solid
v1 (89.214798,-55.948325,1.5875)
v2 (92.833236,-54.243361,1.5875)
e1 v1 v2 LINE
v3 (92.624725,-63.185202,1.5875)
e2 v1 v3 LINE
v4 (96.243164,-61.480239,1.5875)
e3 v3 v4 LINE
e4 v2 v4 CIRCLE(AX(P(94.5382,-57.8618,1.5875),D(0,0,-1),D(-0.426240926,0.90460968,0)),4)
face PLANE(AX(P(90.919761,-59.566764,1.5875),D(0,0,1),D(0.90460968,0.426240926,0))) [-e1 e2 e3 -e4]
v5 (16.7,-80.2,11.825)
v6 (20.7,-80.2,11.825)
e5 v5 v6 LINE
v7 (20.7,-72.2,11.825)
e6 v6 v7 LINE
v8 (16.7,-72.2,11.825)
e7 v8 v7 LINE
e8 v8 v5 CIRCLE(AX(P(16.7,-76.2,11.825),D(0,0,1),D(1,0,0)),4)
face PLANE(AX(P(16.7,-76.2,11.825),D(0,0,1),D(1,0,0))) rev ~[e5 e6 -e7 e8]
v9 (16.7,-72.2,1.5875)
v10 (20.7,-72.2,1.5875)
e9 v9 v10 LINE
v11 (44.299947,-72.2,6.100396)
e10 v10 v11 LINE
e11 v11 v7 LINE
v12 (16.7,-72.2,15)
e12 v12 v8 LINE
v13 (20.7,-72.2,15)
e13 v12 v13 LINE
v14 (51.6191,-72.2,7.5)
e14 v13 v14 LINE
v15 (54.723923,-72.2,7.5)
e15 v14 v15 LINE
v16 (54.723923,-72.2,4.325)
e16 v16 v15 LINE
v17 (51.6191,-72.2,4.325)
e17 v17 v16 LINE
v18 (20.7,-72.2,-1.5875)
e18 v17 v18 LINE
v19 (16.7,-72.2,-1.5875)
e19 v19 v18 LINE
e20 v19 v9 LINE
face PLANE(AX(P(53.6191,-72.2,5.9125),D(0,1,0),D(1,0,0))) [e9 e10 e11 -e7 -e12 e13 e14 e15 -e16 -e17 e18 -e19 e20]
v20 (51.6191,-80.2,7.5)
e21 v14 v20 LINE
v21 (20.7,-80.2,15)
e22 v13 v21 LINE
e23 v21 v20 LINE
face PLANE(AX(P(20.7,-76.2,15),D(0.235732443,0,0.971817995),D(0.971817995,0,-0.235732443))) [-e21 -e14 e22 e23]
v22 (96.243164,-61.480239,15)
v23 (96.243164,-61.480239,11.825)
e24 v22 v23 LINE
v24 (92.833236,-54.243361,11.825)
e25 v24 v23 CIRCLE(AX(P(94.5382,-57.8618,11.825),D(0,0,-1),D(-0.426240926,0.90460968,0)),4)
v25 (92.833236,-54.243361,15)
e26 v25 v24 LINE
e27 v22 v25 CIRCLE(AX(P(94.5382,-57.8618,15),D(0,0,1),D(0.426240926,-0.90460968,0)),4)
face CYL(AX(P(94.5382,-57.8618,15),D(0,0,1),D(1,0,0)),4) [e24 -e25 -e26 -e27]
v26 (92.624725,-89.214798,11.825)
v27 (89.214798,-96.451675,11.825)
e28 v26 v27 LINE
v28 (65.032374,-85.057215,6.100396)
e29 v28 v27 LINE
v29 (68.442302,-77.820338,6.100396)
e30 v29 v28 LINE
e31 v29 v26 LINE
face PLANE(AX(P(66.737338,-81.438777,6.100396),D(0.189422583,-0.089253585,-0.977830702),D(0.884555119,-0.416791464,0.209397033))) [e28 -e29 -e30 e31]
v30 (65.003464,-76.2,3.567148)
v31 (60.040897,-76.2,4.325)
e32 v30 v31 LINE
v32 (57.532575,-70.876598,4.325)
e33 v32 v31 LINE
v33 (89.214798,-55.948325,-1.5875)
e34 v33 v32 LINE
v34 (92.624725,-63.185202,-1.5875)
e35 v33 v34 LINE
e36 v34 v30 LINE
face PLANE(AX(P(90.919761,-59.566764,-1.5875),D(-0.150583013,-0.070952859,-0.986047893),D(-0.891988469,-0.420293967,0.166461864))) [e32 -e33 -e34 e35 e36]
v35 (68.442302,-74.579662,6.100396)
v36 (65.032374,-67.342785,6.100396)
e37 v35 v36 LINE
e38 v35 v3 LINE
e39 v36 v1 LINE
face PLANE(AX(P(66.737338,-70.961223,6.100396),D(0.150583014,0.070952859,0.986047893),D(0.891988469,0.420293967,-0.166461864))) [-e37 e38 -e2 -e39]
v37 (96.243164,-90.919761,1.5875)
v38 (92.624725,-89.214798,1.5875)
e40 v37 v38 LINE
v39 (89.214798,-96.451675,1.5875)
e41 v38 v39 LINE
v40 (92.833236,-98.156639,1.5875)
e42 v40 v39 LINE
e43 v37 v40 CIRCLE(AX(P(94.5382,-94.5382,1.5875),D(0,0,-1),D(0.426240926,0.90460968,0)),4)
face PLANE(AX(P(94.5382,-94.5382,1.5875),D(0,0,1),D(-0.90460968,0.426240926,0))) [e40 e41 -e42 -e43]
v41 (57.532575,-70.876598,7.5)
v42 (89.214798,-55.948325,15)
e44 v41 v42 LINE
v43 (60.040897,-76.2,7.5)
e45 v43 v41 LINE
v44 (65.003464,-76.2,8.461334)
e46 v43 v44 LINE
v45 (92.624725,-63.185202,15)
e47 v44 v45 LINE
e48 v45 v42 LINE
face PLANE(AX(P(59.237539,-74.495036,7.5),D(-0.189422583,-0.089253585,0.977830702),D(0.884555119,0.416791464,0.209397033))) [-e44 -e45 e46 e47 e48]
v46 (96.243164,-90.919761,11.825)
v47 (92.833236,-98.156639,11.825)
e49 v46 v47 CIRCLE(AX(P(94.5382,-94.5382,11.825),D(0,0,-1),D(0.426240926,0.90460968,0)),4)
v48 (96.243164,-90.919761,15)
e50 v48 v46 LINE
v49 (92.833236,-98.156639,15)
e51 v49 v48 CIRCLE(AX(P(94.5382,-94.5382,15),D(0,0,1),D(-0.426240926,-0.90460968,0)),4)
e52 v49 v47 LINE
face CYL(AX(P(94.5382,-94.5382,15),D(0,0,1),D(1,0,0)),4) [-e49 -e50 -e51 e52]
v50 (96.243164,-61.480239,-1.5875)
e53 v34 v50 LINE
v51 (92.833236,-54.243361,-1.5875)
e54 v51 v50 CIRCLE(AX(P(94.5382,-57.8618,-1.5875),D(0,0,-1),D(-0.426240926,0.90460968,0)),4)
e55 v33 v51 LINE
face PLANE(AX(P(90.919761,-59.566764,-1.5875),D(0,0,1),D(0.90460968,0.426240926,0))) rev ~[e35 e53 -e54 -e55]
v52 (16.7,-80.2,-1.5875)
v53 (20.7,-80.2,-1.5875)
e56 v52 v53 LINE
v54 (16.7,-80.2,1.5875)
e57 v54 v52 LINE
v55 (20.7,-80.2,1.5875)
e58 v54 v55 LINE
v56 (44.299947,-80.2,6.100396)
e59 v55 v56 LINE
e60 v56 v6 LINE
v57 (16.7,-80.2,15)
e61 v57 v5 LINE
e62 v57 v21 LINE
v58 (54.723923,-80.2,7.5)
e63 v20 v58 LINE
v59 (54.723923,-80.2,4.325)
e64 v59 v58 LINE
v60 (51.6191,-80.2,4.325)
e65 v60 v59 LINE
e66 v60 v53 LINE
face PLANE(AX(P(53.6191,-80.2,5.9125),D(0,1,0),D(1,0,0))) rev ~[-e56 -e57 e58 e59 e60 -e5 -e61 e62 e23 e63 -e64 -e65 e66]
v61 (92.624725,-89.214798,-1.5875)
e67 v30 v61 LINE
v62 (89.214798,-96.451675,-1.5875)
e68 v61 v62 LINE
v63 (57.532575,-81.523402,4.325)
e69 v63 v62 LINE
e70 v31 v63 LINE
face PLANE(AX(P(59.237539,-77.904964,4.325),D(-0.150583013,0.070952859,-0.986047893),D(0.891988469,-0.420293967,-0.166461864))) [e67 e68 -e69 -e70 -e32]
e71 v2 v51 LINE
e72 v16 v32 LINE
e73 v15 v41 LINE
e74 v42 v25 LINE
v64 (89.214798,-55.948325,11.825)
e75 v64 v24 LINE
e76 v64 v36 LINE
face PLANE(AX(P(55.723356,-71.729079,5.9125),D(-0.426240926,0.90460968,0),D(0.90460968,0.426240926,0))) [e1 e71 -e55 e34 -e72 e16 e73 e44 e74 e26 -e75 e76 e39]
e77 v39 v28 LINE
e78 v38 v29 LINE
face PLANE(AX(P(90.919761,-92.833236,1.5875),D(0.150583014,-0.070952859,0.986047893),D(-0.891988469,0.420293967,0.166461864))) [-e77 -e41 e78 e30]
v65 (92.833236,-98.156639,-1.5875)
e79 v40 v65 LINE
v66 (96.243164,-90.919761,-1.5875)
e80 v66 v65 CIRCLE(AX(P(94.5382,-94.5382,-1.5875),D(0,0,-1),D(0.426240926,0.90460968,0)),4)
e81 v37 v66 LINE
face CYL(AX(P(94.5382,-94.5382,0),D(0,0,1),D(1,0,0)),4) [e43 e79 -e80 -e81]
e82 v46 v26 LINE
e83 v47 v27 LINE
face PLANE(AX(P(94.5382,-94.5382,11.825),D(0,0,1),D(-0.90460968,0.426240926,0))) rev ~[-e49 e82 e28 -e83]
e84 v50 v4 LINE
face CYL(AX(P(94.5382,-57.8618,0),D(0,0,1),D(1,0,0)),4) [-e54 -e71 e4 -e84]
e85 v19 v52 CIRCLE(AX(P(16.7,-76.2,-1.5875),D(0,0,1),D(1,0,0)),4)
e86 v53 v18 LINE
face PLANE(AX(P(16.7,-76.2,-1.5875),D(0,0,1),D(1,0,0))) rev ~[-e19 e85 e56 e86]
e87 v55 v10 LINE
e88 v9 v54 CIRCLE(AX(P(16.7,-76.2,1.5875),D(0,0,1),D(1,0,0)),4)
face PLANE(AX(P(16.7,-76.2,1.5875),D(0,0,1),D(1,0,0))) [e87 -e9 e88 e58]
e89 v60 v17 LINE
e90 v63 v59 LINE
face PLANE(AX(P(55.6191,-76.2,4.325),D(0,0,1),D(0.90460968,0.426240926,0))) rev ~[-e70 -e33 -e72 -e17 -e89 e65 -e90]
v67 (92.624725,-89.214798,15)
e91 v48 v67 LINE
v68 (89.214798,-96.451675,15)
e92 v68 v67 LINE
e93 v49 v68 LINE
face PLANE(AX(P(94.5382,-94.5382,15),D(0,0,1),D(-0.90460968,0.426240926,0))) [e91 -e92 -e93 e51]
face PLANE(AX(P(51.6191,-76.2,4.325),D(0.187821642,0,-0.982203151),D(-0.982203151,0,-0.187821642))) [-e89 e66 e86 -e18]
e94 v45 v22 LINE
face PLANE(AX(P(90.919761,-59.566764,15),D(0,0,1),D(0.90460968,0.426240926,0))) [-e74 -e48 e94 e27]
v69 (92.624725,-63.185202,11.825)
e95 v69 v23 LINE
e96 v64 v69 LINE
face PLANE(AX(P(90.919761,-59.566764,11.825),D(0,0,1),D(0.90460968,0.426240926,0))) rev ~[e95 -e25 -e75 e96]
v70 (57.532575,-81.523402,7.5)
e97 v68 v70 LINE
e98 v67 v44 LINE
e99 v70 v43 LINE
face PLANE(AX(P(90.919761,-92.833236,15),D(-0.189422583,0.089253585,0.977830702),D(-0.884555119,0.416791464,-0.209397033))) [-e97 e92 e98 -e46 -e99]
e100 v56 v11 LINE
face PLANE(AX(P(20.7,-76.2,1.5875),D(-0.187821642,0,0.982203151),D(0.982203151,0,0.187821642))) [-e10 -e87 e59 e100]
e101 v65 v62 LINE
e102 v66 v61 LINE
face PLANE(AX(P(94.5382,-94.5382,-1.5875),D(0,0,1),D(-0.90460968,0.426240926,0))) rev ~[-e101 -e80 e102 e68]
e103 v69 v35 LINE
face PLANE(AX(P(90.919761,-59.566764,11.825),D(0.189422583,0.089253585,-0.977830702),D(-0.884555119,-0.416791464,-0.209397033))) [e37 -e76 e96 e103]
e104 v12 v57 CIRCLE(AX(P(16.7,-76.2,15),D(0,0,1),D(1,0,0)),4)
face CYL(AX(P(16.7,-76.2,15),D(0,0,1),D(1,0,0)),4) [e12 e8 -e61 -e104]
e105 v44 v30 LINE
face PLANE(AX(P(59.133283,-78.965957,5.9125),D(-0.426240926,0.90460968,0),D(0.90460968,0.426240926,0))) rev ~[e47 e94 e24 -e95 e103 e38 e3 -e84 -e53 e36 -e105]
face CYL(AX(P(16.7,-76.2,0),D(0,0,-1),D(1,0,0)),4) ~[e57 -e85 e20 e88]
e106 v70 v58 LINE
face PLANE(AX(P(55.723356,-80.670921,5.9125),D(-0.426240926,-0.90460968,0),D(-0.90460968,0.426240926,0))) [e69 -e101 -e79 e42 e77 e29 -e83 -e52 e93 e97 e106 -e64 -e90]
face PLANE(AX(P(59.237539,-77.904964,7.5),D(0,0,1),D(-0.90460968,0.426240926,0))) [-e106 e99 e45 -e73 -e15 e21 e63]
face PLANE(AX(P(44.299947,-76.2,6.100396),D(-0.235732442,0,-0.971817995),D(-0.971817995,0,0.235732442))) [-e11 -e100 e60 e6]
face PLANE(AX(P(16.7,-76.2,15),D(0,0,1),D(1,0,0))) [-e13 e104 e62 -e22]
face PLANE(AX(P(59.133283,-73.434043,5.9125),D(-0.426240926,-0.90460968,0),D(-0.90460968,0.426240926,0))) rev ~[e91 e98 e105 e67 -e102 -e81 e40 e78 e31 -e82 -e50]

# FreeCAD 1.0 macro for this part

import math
import FreeCAD as App
import Part
import Sketcher


def add_polygon(sketch, points):
    """Adds a closed chain of lines whose ends are joined by coincident constraints."""
    first, n = sketch.GeometryCount, len(points)
    for a, b in zip(points, points[1:] + points[:1]):
        sketch.addGeometry(Part.LineSegment(App.Vector(*a, 0), App.Vector(*b, 0)), False)
    for i in range(n):
        sketch.addConstraint(Sketcher.Constraint("Coincident", first + i, 2, first + (i + 1) % n, 1))

doc = App.newDocument("Part")
body = doc.addObject("PartDesign::Body", "Body")
body.AllowCompound = True

# Sketch on XY plane
sketch1 = body.newObject("Sketcher::SketchObject", "Sketch")
sketch1.AttachmentSupport = (doc.getObject("XY_Plane"), [""])
sketch1.MapMode = "FlatFace"
sketch1.addGeometry(Part.Circle(App.Vector(16.7, -76.2, 0), App.Vector(0, 0, 1), 4), False)
sketch1.addGeometry(Part.Circle(App.Vector(94.5382, -57.8618, 0), App.Vector(0, 0, 1), 4), False)
sketch1.addGeometry(Part.Circle(App.Vector(94.5382, -94.5382, 0), App.Vector(0, 0, 1), 4), False)
sketch1.addConstraint(Sketcher.Constraint("Equal", 0, 1))
sketch1.addConstraint(Sketcher.Constraint("Equal", 1, 2))
sketch1.addConstraint(Sketcher.Constraint("Vertical", 1, 3, 2, 3))
sketch1.addConstraint(Sketcher.Constraint("Diameter", 0, 8.0))
sketch1.addConstraint(Sketcher.Constraint("DistanceX", -1, 1, 0, 3, 16.7))
sketch1.addConstraint(Sketcher.Constraint("DistanceY", 0, 3, -1, 1, 76.2))
sketch1.addConstraint(Sketcher.Constraint("DistanceX", -1, 1, 1, 3, 94.5382))
sketch1.addConstraint(Sketcher.Constraint("DistanceY", 1, 3, -1, 1, 57.8618))
sketch1.addConstraint(Sketcher.Constraint("DistanceY", 2, 3, -1, 1, 94.5382))
pad1 = body.newObject("PartDesign::Pad", "Pad")
pad1.Profile = sketch1
pad1.Length = 3.175
pad1.Midplane = True
body2 = doc.addObject("PartDesign::Body", "Body001")
body2.AllowCompound = True

# Sketch on XY plane
sketch2 = body2.newObject("Sketcher::SketchObject", "Sketch001")
sketch2.AttachmentSupport = (doc.getObject("XY_Plane001"), [""])
sketch2.MapMode = "FlatFace"
sketch2.AttachmentOffset = App.Placement(App.Vector(0, 0, 15), App.Rotation())
sketch2.addGeometry(Part.Circle(App.Vector(94.5382, -57.8618, 0), App.Vector(0, 0, 1), 4), False)
sketch2.addGeometry(Part.Circle(App.Vector(94.5382, -94.5382, 0), App.Vector(0, 0, 1), 4), False)
sketch2.addGeometry(Part.Circle(App.Vector(16.7, -76.2, 0), App.Vector(0, 0, 1), 4), False)
sketch2.addConstraint(Sketcher.Constraint("Equal", 0, 1))
sketch2.addConstraint(Sketcher.Constraint("Equal", 1, 2))
sketch2.addConstraint(Sketcher.Constraint("Vertical", 0, 3, 1, 3))
sketch2.addConstraint(Sketcher.Constraint("Diameter", 0, 8.0))
sketch2.addConstraint(Sketcher.Constraint("DistanceX", -1, 1, 2, 3, 16.7))
sketch2.addConstraint(Sketcher.Constraint("DistanceY", 2, 3, -1, 1, 76.2))
sketch2.addConstraint(Sketcher.Constraint("DistanceX", -1, 1, 0, 3, 94.5382))
sketch2.addConstraint(Sketcher.Constraint("DistanceY", 0, 3, -1, 1, 57.8618))
sketch2.addConstraint(Sketcher.Constraint("DistanceY", 1, 3, -1, 1, 94.5382))
pad2 = body2.newObject("PartDesign::Pad", "Pad001")
pad2.Profile = sketch2
pad2.Length = 3.175
pad2.Reversed = True
body3 = doc.addObject("PartDesign::Body", "Body002")

# Sketch on XY plane
sketch3 = body3.newObject("Sketcher::SketchObject", "Sketch002")
sketch3.AttachmentSupport = (doc.getObject("XY_Plane002"), [""])
sketch3.MapMode = "FlatFace"
sketch3.AttachmentOffset = App.Placement(App.Vector(0, 0, 7.5), App.Rotation())
sketch3.addGeometry(Part.ArcOfCircle(Part.Circle(App.Vector(55.6191, -76.2, 0), App.Vector(0, 0, 1), 4), math.radians(115.229235), math.radians(270)), False)
sketch3.addGeometry(Part.ArcOfCircle(Part.Circle(App.Vector(55.6191, -76.2, 0), App.Vector(0, 0, 1), 4), math.radians(-90), math.radians(-64.770765)), False)
sketch3.addGeometry(Part.ArcOfCircle(Part.Circle(App.Vector(55.6191, -76.2, 0), App.Vector(0, 0, 1), 4), math.radians(-64.770765), math.radians(0)), False)
sketch3.addGeometry(Part.ArcOfCircle(Part.Circle(App.Vector(55.6191, -76.2, 0), App.Vector(0, 0, 1), 4), math.radians(0), math.radians(64.770765)), False)
sketch3.addGeometry(Part.ArcOfCircle(Part.Circle(App.Vector(55.6191, -76.2, 0), App.Vector(0, 0, 1), 4), math.radians(64.770765), math.radians(90)), False)
sketch3.addGeometry(Part.ArcOfCircle(Part.Circle(App.Vector(55.6191, -76.2, 0), App.Vector(0, 0, 1), 4), math.radians(90), math.radians(115.229235)), False)
sketch3.addConstraint(Sketcher.Constraint("Tangent", 0, 2, 1, 1))
sketch3.addConstraint(Sketcher.Constraint("Tangent", 1, 2, 2, 1))
sketch3.addConstraint(Sketcher.Constraint("Tangent", 2, 2, 3, 1))
sketch3.addConstraint(Sketcher.Constraint("Tangent", 3, 2, 4, 1))
sketch3.addConstraint(Sketcher.Constraint("Tangent", 4, 2, 5, 1))
sketch3.addConstraint(Sketcher.Constraint("Tangent", 5, 2, 0, 1))
sketch3.addConstraint(Sketcher.Constraint("Coincident", 2, 3, 0, 3))
sketch3.addConstraint(Sketcher.Constraint("Equal", 2, 3))
sketch3.addConstraint(Sketcher.Constraint("Horizontal", 5, 3, 2, 2))
sketch3.addConstraint(Sketcher.Constraint("Horizontal", 3, 2, 5, 2))
sketch3.addConstraint(Sketcher.Constraint("Vertical", 5, 3, 0, 2))
sketch3.addConstraint(Sketcher.Constraint("Vertical", 1, 2, 3, 2))
sketch3.addConstraint(Sketcher.Constraint("Vertical", 0, 2, 4, 2))
sketch3.addConstraint(Sketcher.Constraint("Radius", 0, 4.0))
sketch3.addConstraint(Sketcher.Constraint("DistanceY", 0, 3, -1, 1, 76.2))
sketch3.addConstraint(Sketcher.Constraint("DistanceX", -1, 1, 0, 3, 55.6191))
sketch3.addConstraint(Sketcher.Constraint("DistanceY", 1, 2, -1, 1, 79.818439))
pad3 = body3.newObject("PartDesign::Pad", "Pad002")
pad3.Profile = sketch3
pad3.Length = 3.175
pad3.Reversed = True
body.AllowCompound = True
doc.recompute()

boolean = body.newObject("PartDesign::Boolean", "Boolean")
boolean.Type = "Fuse"
boolean.addObjects([body2])
doc.recompute()

boolean2 = body.newObject("PartDesign::Boolean", "Boolean001")
boolean2.Type = "Fuse"
boolean2.addObjects([body3])

# Sketch on XZ plane
sketch4 = body.newObject("Sketcher::SketchObject", "Sketch003")
sketch4.AttachmentSupport = (doc.getObject("XZ_Plane"), [""])
sketch4.MapMode = "FlatFace"
sketch4.AttachmentOffset = App.Placement(App.Vector(0, 0, 76.2), App.Rotation())
add_polygon(sketch4, [(51.6191, 7.5), (55.6191, 7.5), (55.6191, 4.325), (51.6191, 4.325), (20.7, -1.5875), (16.7, -1.5875), (16.7, 1.5875), (20.7, 1.5875), (44.299947, 6.100396), (20.7, 11.825), (16.7, 11.825), (16.7, 15), (20.7, 15)])  # lines 0-12
sketch4.addConstraint(Sketcher.Constraint("Horizontal", 0))
sketch4.addConstraint(Sketcher.Constraint("Vertical", 1))
sketch4.addConstraint(Sketcher.Constraint("Horizontal", 2))
sketch4.addConstraint(Sketcher.Constraint("Horizontal", 4))
sketch4.addConstraint(Sketcher.Constraint("Vertical", 5))
sketch4.addConstraint(Sketcher.Constraint("Horizontal", 6))
sketch4.addConstraint(Sketcher.Constraint("Horizontal", 9))
sketch4.addConstraint(Sketcher.Constraint("Vertical", 10))
sketch4.addConstraint(Sketcher.Constraint("Horizontal", 11))
sketch4.addConstraint(Sketcher.Constraint("Symmetric", 3, 2, 6, 2, -1))
sketch4.addConstraint(Sketcher.Constraint("Parallel", 3, 7))
sketch4.addConstraint(Sketcher.Constraint("Parallel", 8, 12))
sketch4.addConstraint(Sketcher.Constraint("Vertical", 6, 2, 8, 2))
sketch4.addConstraint(Sketcher.Constraint("Vertical", 5, 2, 9, 2))
sketch4.addConstraint(Sketcher.Constraint("Vertical", 8, 2, 11, 2))
sketch4.addConstraint(Sketcher.Constraint("Vertical", 2, 2, 12, 2))
sketch4.addConstraint(Sketcher.Constraint("Equal", 2, 4))
sketch4.addConstraint(Sketcher.Constraint("Equal", 1, 5))
sketch4.addConstraint(Sketcher.Constraint("Equal", 5, 10))
sketch4.addConstraint(Sketcher.Constraint("DistanceX", 0, 1, 0, 2, 4.0))
sketch4.addConstraint(Sketcher.Constraint("DistanceY", -1, 1, 10, 2, 15.0))
sketch4.addConstraint(Sketcher.Constraint("DistanceY", -1, 1, 0, 2, 7.5))
sketch4.addConstraint(Sketcher.Constraint("DistanceX", -1, 1, 3, 2, 20.7))
sketch4.addConstraint(Sketcher.Constraint("DistanceY", 1, 2, 1, 1, 3.175))
sketch4.addConstraint(Sketcher.Constraint("DistanceX", -1, 1, 0, 2, 55.6191))
pad4 = body.newObject("PartDesign::Pad", "Pad003")
pad4.Profile = sketch4
pad4.Length = 8
pad4.Midplane = True

# Sketch on an angled plane
sketch5 = body.newObject("Sketcher::SketchObject", "Sketch004")
sketch5.Placement = App.Placement(App.Vector(-19.276371, -40.910178, 0), App.Rotation(App.Vector(-0.90460968, 0.426240926, 0), App.Vector(0, 0, -1), App.Vector(-0.426240926, -0.90460968, 0), "ZXY"))
add_polygon(sketch5, [(-86.793135, -7.5), (-82.793135, -7.5), (-82.793135, -4.325), (-86.793135, -4.325), (-121.816221, 1.5875), (-125.816221, 1.5875), (-125.816221, -1.5875), (-121.816221, -1.5875), (-95.083781, -6.100396), (-121.816221, -11.825), (-125.816221, -11.825), (-125.816221, -15), (-121.816221, -15)])  # lines 0-12
sketch5.addConstraint(Sketcher.Constraint("Horizontal", 0))
sketch5.addConstraint(Sketcher.Constraint("Vertical", 1))
sketch5.addConstraint(Sketcher.Constraint("Horizontal", 2))
sketch5.addConstraint(Sketcher.Constraint("Horizontal", 4))
sketch5.addConstraint(Sketcher.Constraint("Vertical", 5))
sketch5.addConstraint(Sketcher.Constraint("Horizontal", 6))
sketch5.addConstraint(Sketcher.Constraint("Horizontal", 9))
sketch5.addConstraint(Sketcher.Constraint("Vertical", 10))
sketch5.addConstraint(Sketcher.Constraint("Horizontal", 11))
sketch5.addConstraint(Sketcher.Constraint("Symmetric", 3, 2, 6, 2, -1))
sketch5.addConstraint(Sketcher.Constraint("Parallel", 3, 7))
sketch5.addConstraint(Sketcher.Constraint("Parallel", 8, 12))
sketch5.addConstraint(Sketcher.Constraint("Vertical", 6, 2, 8, 2))
sketch5.addConstraint(Sketcher.Constraint("Vertical", 5, 2, 9, 2))
sketch5.addConstraint(Sketcher.Constraint("Vertical", 8, 2, 11, 2))
sketch5.addConstraint(Sketcher.Constraint("Vertical", 2, 2, 12, 2))
sketch5.addConstraint(Sketcher.Constraint("Equal", 2, 4))
sketch5.addConstraint(Sketcher.Constraint("Equal", 1, 5))
sketch5.addConstraint(Sketcher.Constraint("Equal", 5, 10))
sketch5.addConstraint(Sketcher.Constraint("DistanceX", 0, 1, 0, 2, 4.0))
sketch5.addConstraint(Sketcher.Constraint("DistanceY", 10, 2, -1, 1, 15.0))
sketch5.addConstraint(Sketcher.Constraint("DistanceY", 0, 2, -1, 1, 7.5))
sketch5.addConstraint(Sketcher.Constraint("DistanceY", 1, 1, 1, 2, 3.175))
sketch5.addConstraint(Sketcher.Constraint("Distance", 7, 27.110691))
sketch5.addConstraint(Sketcher.Constraint("DistanceX", 3, 2, -1, 1, 121.816221))
pad5 = body.newObject("PartDesign::Pad", "Pad004")
pad5.Profile = sketch5
pad5.Length = 8
pad5.Midplane = True

# Sketch on an angled plane
sketch6 = body.newObject("Sketcher::SketchObject", "Sketch005")
sketch6.Placement = App.Placement(App.Vector(39.486275, -83.801588, 0), App.Rotation(App.Vector(0.90460968, 0.426240926, 0), App.Vector(0, 0, -1), App.Vector(-0.426240926, 0.90460968, 0), "ZXY"))
add_polygon(sketch6, [(17.834018, -4.325), (17.834018, -7.5), (21.834018, -7.5), (56.857104, -15), (60.857104, -15), (60.857104, -11.825), (56.857104, -11.825), (30.124664, -6.100396), (56.857104, -1.5875), (60.857104, -1.5875), (60.857104, 1.5875), (56.857104, 1.5875), (21.834018, -4.325)])  # lines 0-12
sketch6.addConstraint(Sketcher.Constraint("Vertical", 0))
sketch6.addConstraint(Sketcher.Constraint("Horizontal", 1))
sketch6.addConstraint(Sketcher.Constraint("Horizontal", 3))
sketch6.addConstraint(Sketcher.Constraint("Vertical", 4))
sketch6.addConstraint(Sketcher.Constraint("Horizontal", 5))
sketch6.addConstraint(Sketcher.Constraint("Horizontal", 8))
sketch6.addConstraint(Sketcher.Constraint("Vertical", 9))
sketch6.addConstraint(Sketcher.Constraint("Horizontal", 10))
sketch6.addConstraint(Sketcher.Constraint("Horizontal", 12))
sketch6.addConstraint(Sketcher.Constraint("Symmetric", 7, 2, 10, 2, -1))
sketch6.addConstraint(Sketcher.Constraint("Parallel", 2, 6))
sketch6.addConstraint(Sketcher.Constraint("Parallel", 7, 11))
sketch6.addConstraint(Sketcher.Constraint("Vertical", 2, 2, 5, 2))
sketch6.addConstraint(Sketcher.Constraint("Vertical", 5, 2, 7, 2))
sketch6.addConstraint(Sketcher.Constraint("Vertical", 4, 2, 8, 2))
sketch6.addConstraint(Sketcher.Constraint("Vertical", 1, 2, 11, 2))
sketch6.addConstraint(Sketcher.Constraint("Equal", 1, 3))
sketch6.addConstraint(Sketcher.Constraint("Equal", 0, 4))
sketch6.addConstraint(Sketcher.Constraint("Equal", 4, 9))
sketch6.addConstraint(Sketcher.Constraint("DistanceX", 1, 1, 1, 2, 4.0))
sketch6.addConstraint(Sketcher.Constraint("DistanceY", 2, 2, -1, 1, 15.0))
sketch6.addConstraint(Sketcher.Constraint("DistanceY", 0, 2, -1, 1, 7.5))
sketch6.addConstraint(Sketcher.Constraint("DistanceY", 0, 2, 0, 1, 3.175))
sketch6.addConstraint(Sketcher.Constraint("Distance", 7, 27.110691))
sketch6.addConstraint(Sketcher.Constraint("DistanceX", -1, 1, 0, 2, 17.834018))
pad6 = body.newObject("PartDesign::Pad", "Pad005")
pad6.Profile = sketch6
pad6.Length = 8
pad6.Midplane = True

doc.recompute()
